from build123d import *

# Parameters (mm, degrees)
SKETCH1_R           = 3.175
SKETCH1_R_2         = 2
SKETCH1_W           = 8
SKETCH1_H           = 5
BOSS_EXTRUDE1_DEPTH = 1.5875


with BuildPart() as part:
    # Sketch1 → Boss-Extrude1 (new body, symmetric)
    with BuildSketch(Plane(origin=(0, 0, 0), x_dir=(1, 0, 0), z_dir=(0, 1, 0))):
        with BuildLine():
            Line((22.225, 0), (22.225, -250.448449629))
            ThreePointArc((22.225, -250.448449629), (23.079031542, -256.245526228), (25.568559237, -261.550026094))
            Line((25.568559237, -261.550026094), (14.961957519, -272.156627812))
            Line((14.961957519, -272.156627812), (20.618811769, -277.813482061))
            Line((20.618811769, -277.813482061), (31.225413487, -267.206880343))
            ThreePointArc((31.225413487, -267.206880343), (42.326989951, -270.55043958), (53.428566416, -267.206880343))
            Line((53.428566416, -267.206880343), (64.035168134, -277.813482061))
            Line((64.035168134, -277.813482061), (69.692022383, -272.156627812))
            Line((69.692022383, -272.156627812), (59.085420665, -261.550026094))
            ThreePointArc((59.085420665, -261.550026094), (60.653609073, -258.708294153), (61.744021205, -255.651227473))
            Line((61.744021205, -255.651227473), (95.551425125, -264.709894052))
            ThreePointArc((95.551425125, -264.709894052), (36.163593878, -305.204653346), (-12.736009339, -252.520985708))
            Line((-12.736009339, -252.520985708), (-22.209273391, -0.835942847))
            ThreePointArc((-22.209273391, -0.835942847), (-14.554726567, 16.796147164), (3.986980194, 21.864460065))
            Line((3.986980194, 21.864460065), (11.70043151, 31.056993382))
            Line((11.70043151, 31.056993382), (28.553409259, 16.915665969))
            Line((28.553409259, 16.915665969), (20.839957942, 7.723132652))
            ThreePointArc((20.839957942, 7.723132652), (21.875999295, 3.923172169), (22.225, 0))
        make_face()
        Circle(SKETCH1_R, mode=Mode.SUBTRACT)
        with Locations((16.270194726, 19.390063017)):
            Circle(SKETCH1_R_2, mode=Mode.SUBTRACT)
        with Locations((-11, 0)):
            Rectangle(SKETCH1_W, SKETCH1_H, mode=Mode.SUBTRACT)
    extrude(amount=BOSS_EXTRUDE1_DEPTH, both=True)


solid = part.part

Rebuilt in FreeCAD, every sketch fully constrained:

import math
import FreeCAD as App
import Part
import Sketcher
Q = App.Units.Quantity


def add_polygon(sketch, points):
    """Adds a closed chain of lines whose ends are joined by coincident constraints."""
    first, n = sketch.GeometryCount, len(points)
    for a, b in zip(points, points[1:] + points[:1]):
        sketch.addGeometry(Part.LineSegment(App.Vector(*a, 0), App.Vector(*b, 0)), False)
    for i in range(n):
        sketch.addConstraint(Sketcher.Constraint("Coincident", first + i, 2, first + (i + 1) % n, 1))

doc = App.newDocument("Part")
body = doc.addObject("PartDesign::Body", "Body")

# Sketch on XZ plane
sketch1 = body.newObject("Sketcher::SketchObject", "Sketch")
sketch1.AttachmentSupport = (doc.getObject("XZ_Plane"), [""])
sketch1.MapMode = "FlatFace"
sketch1.addGeometry(Part.LineSegment(App.Vector(22.2, 250.4, 0), App.Vector(22.2, 0, 0)), False)  # 0
sketch1.addGeometry(Part.ArcOfCircle(Part.Circle(App.Vector(0, 0, 0), App.Vector(0, 0, 1), 22.2), math.radians(-20), math.radians(0)), False)  # 1
sketch1.addGeometry(Part.LineSegment(App.Vector(20.8, -7.7, 0), App.Vector(28.6, -16.9, 0)), False)  # 2
sketch1.addGeometry(Part.LineSegment(App.Vector(28.6, -16.9, 0), App.Vector(11.7, -31.1, 0)), False)  # 3
sketch1.addGeometry(Part.LineSegment(App.Vector(11.7, -31.1, 0), App.Vector(4, -21.9, 0)), False)  # 4
sketch1.addGeometry(Part.ArcOfCircle(Part.Circle(App.Vector(0, 0, 0), App.Vector(0, 0, 1), 22.2), math.radians(178), math.radians(280)), False)  # 5
sketch1.addGeometry(Part.LineSegment(App.Vector(-22.2, 0.8, 0), App.Vector(-12.7, 252.5, 0)), False)  # 6
sketch1.addGeometry(Part.ArcOfCircle(Part.Circle(App.Vector(42.3, 250.4, 0), App.Vector(0, 0, 1), 55.1), math.radians(15), math.radians(178)), False)  # 7
sketch1.addGeometry(Part.LineSegment(App.Vector(95.6, 264.7, 0), App.Vector(61.7, 255.7, 0)), False)  # 8
sketch1.addGeometry(Part.ArcOfCircle(Part.Circle(App.Vector(42.3, 250.4, 0), App.Vector(0, 0, 1), 20.1), math.radians(15), math.radians(33.52)), False)  # 9
sketch1.addGeometry(Part.LineSegment(App.Vector(59.1, 261.6, 0), App.Vector(69.7, 272.2, 0)), False)  # 10
sketch1.addGeometry(Part.LineSegment(App.Vector(69.7, 272.2, 0), App.Vector(64, 277.8, 0)), False)  # 11
sketch1.addGeometry(Part.LineSegment(App.Vector(64, 277.8, 0), App.Vector(53.4, 267.2, 0)), False)  # 12
sketch1.addGeometry(Part.ArcOfCircle(Part.Circle(App.Vector(42.3, 250.4, 0), App.Vector(0, 0, 1), 20.1), math.radians(56), math.radians(124)), False)  # 13
sketch1.addGeometry(Part.LineSegment(App.Vector(31.2, 267.2, 0), App.Vector(20.6, 277.8, 0)), False)  # 14
sketch1.addGeometry(Part.LineSegment(App.Vector(20.6, 277.8, 0), App.Vector(15, 272.2, 0)), False)  # 15
sketch1.addGeometry(Part.LineSegment(App.Vector(15, 272.2, 0), App.Vector(25.6, 261.6, 0)), False)  # 16
sketch1.addGeometry(Part.ArcOfCircle(Part.Circle(App.Vector(42.3, 250.4, 0), App.Vector(0, 0, 1), 20.1), math.radians(146), math.radians(180)), False)  # 17
sketch1.addGeometry(Part.Circle(App.Vector(0, 0, 0), App.Vector(0, 0, 1), 3.2), False)  # 18
add_polygon(sketch1, [(-15, 2.5), (-15, -2.5), (-7, -2.5), (-7, 2.5)])  # lines 19-22
sketch1.addGeometry(Part.Circle(App.Vector(16.3, -19.4, 0), App.Vector(0, 0, 1), 2), False)  # 23
sketch1.addConstraint(Sketcher.Constraint("Tangent", 0, 2, 1, 2))
sketch1.addConstraint(Sketcher.Constraint("Coincident", 1, 1, 2, 1))
sketch1.addConstraint(Sketcher.Constraint("Coincident", 2, 2, 3, 1))
sketch1.addConstraint(Sketcher.Constraint("Coincident", 3, 2, 4, 1))
sketch1.addConstraint(Sketcher.Constraint("Coincident", 4, 2, 5, 2))
sketch1.addConstraint(Sketcher.Constraint("Tangent", 5, 1, 6, 1))
sketch1.addConstraint(Sketcher.Constraint("Tangent", 6, 2, 7, 2))
sketch1.addConstraint(Sketcher.Constraint("Coincident", 7, 1, 8, 1))
sketch1.addConstraint(Sketcher.Constraint("Coincident", 8, 2, 9, 1))
sketch1.addConstraint(Sketcher.Constraint("Coincident", 9, 2, 10, 1))
sketch1.addConstraint(Sketcher.Constraint("Coincident", 10, 2, 11, 1))
sketch1.addConstraint(Sketcher.Constraint("Coincident", 11, 2, 12, 1))
sketch1.addConstraint(Sketcher.Constraint("Coincident", 12, 2, 13, 1))
sketch1.addConstraint(Sketcher.Constraint("Coincident", 13, 2, 14, 1))
sketch1.addConstraint(Sketcher.Constraint("Coincident", 14, 2, 15, 1))
sketch1.addConstraint(Sketcher.Constraint("Coincident", 15, 2, 16, 1))
sketch1.addConstraint(Sketcher.Constraint("Coincident", 16, 2, 17, 1))
sketch1.addConstraint(Sketcher.Constraint("Tangent", 17, 2, 0, 1))
sketch1.addConstraint(Sketcher.Constraint("Vertical", 0))
sketch1.addConstraint(Sketcher.Constraint("Vertical", 19))
sketch1.addConstraint(Sketcher.Constraint("Horizontal", 20))
sketch1.addConstraint(Sketcher.Constraint("Vertical", 21))
sketch1.addConstraint(Sketcher.Constraint("Horizontal", 22))
sketch1.addConstraint(Sketcher.Constraint("Coincident", 1, 3, -1, 1))
sketch1.addConstraint(Sketcher.Constraint("Coincident", 5, 3, -1, 1))
sketch1.addConstraint(Sketcher.Constraint("Coincident", 18, 3, -1, 1))
sketch1.addConstraint(Sketcher.Constraint("Coincident", 9, 3, 7, 3))
sketch1.addConstraint(Sketcher.Constraint("Coincident", 13, 3, 7, 3))
sketch1.addConstraint(Sketcher.Constraint("Coincident", 17, 3, 7, 3))
sketch1.addConstraint(Sketcher.Constraint("Equal", 1, 5))
sketch1.addConstraint(Sketcher.Constraint("Equal", 9, 13))
sketch1.addConstraint(Sketcher.Constraint("Equal", 13, 17))
sketch1.addConstraint(Sketcher.Constraint("Perpendicular", 2, 3))
sketch1.addConstraint(Sketcher.Constraint("Perpendicular", 3, 4))
sketch1.addConstraint(Sketcher.Constraint("Perpendicular", 10, 11))
sketch1.addConstraint(Sketcher.Constraint("Perpendicular", 11, 12))
sketch1.addConstraint(Sketcher.Constraint("Perpendicular", 12, 14))
sketch1.addConstraint(Sketcher.Constraint("Perpendicular", 14, 15))
sketch1.addConstraint(Sketcher.Constraint("Perpendicular", 15, 16))
sketch1.addConstraint(Sketcher.Constraint("Horizontal", 12, 2, 13, 2))
sketch1.addConstraint(Sketcher.Constraint("Horizontal", 11, 2, 14, 2))
sketch1.addConstraint(Sketcher.Constraint("Horizontal", 10, 2, 15, 2))
sketch1.addConstraint(Sketcher.Constraint("Horizontal", 9, 2, 16, 2))
sketch1.addConstraint(Sketcher.Constraint("Equal", 2, 4))
sketch1.addConstraint(Sketcher.Constraint("Equal", 10, 12))
sketch1.addConstraint(Sketcher.Constraint("Diameter", 23, 4.0))
sketch1.addConstraint(Sketcher.Constraint("Diameter", 18, 6.35))
sketch1.addConstraint(Sketcher.Constraint("DistanceX", 20, 1, 20, 2, 8.0))
sketch1.addConstraint(Sketcher.Constraint("DistanceY", 19, 2, 19, 1, 5.0))
sketch1.addConstraint(Sketcher.Constraint("Angle", 2, Q("-50 deg")))
sketch1.addConstraint(Sketcher.Constraint("Angle", 8, Q("-165 deg")))
sketch1.addConstraint(Sketcher.Constraint("Distance", 2, 12.0))
sketch1.addConstraint(Sketcher.Constraint("Distance", 3, 22.0))
sketch1.addConstraint(Sketcher.Constraint("Distance", 8, 35.0))
sketch1.addConstraint(Sketcher.Constraint("Distance", 10, 15.0))
sketch1.addConstraint(Sketcher.Constraint("Distance", 11, 8.0))
sketch1.addConstraint(Sketcher.Constraint("DistanceX", 19, 2, -1, 1, 15.0))
sketch1.addConstraint(Sketcher.Constraint("Radius", 1, 22.225))
sketch1.addConstraint(Sketcher.Constraint("DistanceY", 19, 2, -1, 1, 2.5))
sketch1.addConstraint(Sketcher.Constraint("Radius", 7, 55.10199))
sketch1.addConstraint(Sketcher.Constraint("DistanceX", 8, 2, 10, 2, 7.948001))
sketch1.addConstraint(Sketcher.Constraint("DistanceY", 0, 2, 0, 1, 250.44845))
sketch1.addConstraint(Sketcher.Constraint("DistanceY", 23, 3, 1, 1, 11.66693))
sketch1.addConstraint(Sketcher.Constraint("DistanceX", 5, 1, 23, 3, 38.479468))
pad1 = body.newObject("PartDesign::Pad", "Pad")
pad1.Profile = sketch1
pad1.Length = 3.175
pad1.Midplane = True

doc.recompute()
